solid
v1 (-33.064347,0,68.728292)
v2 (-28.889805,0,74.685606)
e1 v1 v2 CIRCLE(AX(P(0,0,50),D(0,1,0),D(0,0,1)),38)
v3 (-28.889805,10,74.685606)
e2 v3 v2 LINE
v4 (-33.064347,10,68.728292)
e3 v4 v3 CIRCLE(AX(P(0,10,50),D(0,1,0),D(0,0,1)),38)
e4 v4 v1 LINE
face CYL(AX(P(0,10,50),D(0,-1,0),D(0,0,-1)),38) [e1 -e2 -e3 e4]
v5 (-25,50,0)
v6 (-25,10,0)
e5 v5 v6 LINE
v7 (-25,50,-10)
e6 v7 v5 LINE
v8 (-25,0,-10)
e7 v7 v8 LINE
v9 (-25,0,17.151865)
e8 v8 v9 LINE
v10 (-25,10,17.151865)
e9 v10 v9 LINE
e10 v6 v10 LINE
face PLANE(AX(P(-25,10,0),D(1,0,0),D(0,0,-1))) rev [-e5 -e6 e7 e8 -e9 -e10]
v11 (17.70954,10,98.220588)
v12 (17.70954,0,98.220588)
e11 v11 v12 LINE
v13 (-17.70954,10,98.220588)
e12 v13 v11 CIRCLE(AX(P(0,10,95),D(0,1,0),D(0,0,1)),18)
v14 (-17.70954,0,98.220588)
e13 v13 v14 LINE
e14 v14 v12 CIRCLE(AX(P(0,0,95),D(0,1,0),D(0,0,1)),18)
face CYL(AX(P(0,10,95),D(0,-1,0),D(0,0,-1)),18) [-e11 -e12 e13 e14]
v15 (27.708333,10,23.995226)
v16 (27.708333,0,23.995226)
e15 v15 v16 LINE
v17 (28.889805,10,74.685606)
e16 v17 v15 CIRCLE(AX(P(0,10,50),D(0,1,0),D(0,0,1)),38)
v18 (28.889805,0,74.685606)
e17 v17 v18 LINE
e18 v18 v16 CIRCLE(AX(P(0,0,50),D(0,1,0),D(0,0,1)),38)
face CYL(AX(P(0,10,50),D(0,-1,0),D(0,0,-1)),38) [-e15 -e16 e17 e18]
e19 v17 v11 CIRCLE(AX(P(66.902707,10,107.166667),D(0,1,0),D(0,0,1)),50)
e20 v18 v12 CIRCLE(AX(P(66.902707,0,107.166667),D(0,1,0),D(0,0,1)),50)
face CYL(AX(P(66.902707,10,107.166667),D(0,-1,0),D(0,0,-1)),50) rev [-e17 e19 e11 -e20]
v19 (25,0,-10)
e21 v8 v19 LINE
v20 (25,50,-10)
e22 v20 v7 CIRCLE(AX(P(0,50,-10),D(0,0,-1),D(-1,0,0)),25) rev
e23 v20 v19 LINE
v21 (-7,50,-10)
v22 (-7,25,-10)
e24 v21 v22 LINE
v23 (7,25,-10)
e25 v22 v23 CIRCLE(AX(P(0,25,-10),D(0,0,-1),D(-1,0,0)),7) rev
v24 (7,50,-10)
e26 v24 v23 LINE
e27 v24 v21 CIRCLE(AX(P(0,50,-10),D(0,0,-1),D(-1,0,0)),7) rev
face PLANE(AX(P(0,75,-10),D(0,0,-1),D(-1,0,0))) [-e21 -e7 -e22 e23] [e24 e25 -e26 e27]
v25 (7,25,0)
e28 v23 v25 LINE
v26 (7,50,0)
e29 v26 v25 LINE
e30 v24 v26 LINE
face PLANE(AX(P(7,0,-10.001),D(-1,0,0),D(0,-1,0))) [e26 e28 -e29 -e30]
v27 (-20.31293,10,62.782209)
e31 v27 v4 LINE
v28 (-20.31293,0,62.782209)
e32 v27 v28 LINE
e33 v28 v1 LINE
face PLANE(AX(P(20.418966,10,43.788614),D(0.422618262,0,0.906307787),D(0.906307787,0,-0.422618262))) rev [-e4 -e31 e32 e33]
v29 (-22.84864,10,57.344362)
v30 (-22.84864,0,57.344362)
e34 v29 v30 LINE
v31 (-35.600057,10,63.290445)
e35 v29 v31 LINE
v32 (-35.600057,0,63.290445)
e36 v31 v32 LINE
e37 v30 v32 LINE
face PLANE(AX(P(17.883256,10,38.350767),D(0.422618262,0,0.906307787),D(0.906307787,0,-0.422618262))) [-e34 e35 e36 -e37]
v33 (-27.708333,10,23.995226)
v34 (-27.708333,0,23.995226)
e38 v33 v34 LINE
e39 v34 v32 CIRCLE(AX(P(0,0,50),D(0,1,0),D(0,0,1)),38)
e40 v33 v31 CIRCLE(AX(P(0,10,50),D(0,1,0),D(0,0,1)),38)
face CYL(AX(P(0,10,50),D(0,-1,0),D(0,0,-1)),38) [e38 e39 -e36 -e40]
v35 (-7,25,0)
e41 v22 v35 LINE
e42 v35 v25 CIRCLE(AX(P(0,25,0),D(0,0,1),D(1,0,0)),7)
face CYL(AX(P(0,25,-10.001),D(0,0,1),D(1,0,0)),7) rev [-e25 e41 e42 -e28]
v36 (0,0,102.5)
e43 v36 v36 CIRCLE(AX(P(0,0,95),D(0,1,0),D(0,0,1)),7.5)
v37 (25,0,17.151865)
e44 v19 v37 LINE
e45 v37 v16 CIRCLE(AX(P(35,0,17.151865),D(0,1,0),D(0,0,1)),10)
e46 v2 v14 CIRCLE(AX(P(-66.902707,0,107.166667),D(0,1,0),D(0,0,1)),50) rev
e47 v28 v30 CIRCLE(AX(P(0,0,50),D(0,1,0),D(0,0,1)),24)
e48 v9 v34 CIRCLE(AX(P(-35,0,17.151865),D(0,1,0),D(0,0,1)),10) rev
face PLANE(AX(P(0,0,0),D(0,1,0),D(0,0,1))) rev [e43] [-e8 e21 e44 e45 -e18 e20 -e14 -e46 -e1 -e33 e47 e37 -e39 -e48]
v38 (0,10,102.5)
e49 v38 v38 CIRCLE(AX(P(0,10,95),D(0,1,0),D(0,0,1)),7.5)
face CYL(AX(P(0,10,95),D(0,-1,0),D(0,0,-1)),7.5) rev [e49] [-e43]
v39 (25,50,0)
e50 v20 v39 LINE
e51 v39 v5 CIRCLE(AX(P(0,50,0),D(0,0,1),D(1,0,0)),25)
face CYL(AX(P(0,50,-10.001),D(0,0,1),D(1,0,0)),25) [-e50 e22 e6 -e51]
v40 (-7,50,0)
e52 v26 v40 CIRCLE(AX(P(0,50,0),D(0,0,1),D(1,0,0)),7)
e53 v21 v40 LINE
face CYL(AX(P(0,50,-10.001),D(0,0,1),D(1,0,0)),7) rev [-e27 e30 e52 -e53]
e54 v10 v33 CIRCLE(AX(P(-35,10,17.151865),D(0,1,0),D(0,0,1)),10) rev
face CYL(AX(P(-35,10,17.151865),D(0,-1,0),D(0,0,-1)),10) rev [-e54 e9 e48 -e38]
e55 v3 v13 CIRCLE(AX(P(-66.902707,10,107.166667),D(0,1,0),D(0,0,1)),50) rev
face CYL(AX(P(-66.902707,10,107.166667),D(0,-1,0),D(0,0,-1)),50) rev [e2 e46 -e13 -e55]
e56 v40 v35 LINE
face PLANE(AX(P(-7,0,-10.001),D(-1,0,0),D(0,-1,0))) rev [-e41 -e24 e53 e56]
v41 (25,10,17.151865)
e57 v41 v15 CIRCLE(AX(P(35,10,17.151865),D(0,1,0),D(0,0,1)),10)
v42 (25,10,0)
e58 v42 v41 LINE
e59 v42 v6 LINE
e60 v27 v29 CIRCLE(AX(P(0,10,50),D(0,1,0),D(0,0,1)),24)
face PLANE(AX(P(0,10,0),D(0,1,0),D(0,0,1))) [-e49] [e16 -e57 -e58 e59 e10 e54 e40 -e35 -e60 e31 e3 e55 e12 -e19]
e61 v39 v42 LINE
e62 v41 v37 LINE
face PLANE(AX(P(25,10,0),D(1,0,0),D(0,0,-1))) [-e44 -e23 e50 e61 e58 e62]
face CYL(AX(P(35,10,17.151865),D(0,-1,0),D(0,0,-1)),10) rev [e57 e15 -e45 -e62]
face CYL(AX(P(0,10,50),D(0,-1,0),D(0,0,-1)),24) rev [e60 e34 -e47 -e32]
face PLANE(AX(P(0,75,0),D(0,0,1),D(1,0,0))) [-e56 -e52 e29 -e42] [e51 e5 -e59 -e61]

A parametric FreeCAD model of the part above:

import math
import FreeCAD as App
import Part
import Sketcher
from FreeCAD import Vector
Q = App.Units.Quantity


def add_polygon(sketch, points):
    """Adds a closed chain of lines whose ends are joined by coincident constraints."""
    first, n = sketch.GeometryCount, len(points)
    for a, b in zip(points, points[1:] + points[:1]):
        sketch.addGeometry(Part.LineSegment(App.Vector(*a, 0), App.Vector(*b, 0)), False)
    for i in range(n):
        sketch.addConstraint(Sketcher.Constraint("Coincident", first + i, 2, first + (i + 1) % n, 1))

doc = App.newDocument("Part")
body = doc.addObject("PartDesign::Body", "Body")

# Sketch on XZ plane
sketch1 = body.newObject("Sketcher::SketchObject", "Sketch")
sketch1.AttachmentSupport = (doc.getObject("XZ_Plane"), [""])
sketch1.MapMode = "FlatFace"
sketch1.addGeometry(Part.LineSegment(Vector(25, 0, 0), Vector(-25, 0, 0)), False)
sketch1.addGeometry(Part.LineSegment(Vector(-25, 0, 0), Vector(-25, 17, 0)), False)
sketch1.addGeometry(Part.ArcOfCircle(Part.Circle(Vector(-35, 17, 0), Vector(0, 0, 1), 10), math.radians(0), math.radians(43)), False)
sketch1.addGeometry(Part.ArcOfCircle(Part.Circle(Vector(0, 50, 0), Vector(0, 0, 1), 38), math.radians(160), math.radians(223)), False)
sketch1.addGeometry(Part.LineSegment(Vector(-36, 63, 0), Vector(-23, 57, 0)), False)
sketch1.addGeometry(Part.ArcOfCircle(Part.Circle(Vector(0, 50, 0), Vector(0, 0, 1), 24), math.radians(162), math.radians(508)), False)
sketch1.addGeometry(Part.LineSegment(Vector(-20, 63, 0), Vector(-33, 69, 0)), False)
sketch1.addGeometry(Part.ArcOfCircle(Part.Circle(Vector(0, 50, 0), Vector(0, 0, 1), 38), math.radians(139.49), math.radians(150.47)), False)
sketch1.addGeometry(Part.ArcOfCircle(Part.Circle(Vector(-67, 107, 0), Vector(0, 0, 1), 50), math.radians(-41), math.radians(-10)), False)
sketch1.addGeometry(Part.ArcOfCircle(Part.Circle(Vector(0, 95, 0), Vector(0, 0, 1), 18), math.radians(10), math.radians(170)), False)
sketch1.addGeometry(Part.ArcOfCircle(Part.Circle(Vector(67, 107, 0), Vector(0, 0, 1), 50), math.radians(-170), math.radians(-139)), False)
sketch1.addGeometry(Part.ArcOfCircle(Part.Circle(Vector(0, 50, 0), Vector(0, 0, 1), 38), math.radians(-43), math.radians(41)), False)
sketch1.addGeometry(Part.ArcOfCircle(Part.Circle(Vector(35, 17, 0), Vector(0, 0, 1), 10), math.radians(137), math.radians(180)), False)
sketch1.addGeometry(Part.LineSegment(Vector(25, 17, 0), Vector(25, 0, 0)), False)
sketch1.addGeometry(Part.Circle(Vector(0, 95, 0), Vector(0, 0, 1), 8), False)
sketch1.addConstraint(Sketcher.Constraint("Coincident", 0, 2, 1, 1))
sketch1.addConstraint(Sketcher.Constraint("Tangent", 1, 2, 2, 1))
sketch1.addConstraint(Sketcher.Constraint("Tangent", 2, 2, 3, 2))
sketch1.addConstraint(Sketcher.Constraint("Coincident", 3, 1, 4, 1))
sketch1.addConstraint(Sketcher.Constraint("Coincident", 4, 2, 5, 1))
sketch1.addConstraint(Sketcher.Constraint("Coincident", 5, 2, 6, 1))
sketch1.addConstraint(Sketcher.Constraint("Coincident", 6, 2, 7, 2))
sketch1.addConstraint(Sketcher.Constraint("Tangent", 7, 1, 8, 1))
sketch1.addConstraint(Sketcher.Constraint("Tangent", 8, 2, 9, 2))
sketch1.addConstraint(Sketcher.Constraint("Tangent", 9, 1, 10, 1))
sketch1.addConstraint(Sketcher.Constraint("Tangent", 10, 2, 11, 2))
sketch1.addConstraint(Sketcher.Constraint("Tangent", 11, 1, 12, 1))
sketch1.addConstraint(Sketcher.Constraint("Tangent", 12, 2, 13, 1))
sketch1.addConstraint(Sketcher.Constraint("Coincident", 13, 2, 0, 1))
sketch1.addConstraint(Sketcher.Constraint("Horizontal", 0))
sketch1.addConstraint(Sketcher.Constraint("Vertical", 1))
sketch1.addConstraint(Sketcher.Constraint("Vertical", 13))
sketch1.addConstraint(Sketcher.Constraint("Coincident", 5, 3, 3, 3))
sketch1.addConstraint(Sketcher.Constraint("Coincident", 7, 3, 3, 3))
sketch1.addConstraint(Sketcher.Constraint("Coincident", 11, 3, 3, 3))
sketch1.addConstraint(Sketcher.Constraint("Coincident", 14, 3, 9, 3))
sketch1.addConstraint(Sketcher.Constraint("Equal", 3, 7))
sketch1.addConstraint(Sketcher.Constraint("Equal", 8, 10))
sketch1.addConstraint(Sketcher.Constraint("Equal", 7, 11))
sketch1.addConstraint(Sketcher.Constraint("Equal", 2, 12))
sketch1.addConstraint(Sketcher.Constraint("Symmetric", 0, 2, 13, 2, -1, 1))
sketch1.addConstraint(Sketcher.Constraint("Symmetric", 8, 3, 10, 3, -2))
sketch1.addConstraint(Sketcher.Constraint("Parallel", 4, 6))
sketch1.addConstraint(Sketcher.Constraint("Equal", 4, 6))
sketch1.addConstraint(Sketcher.Constraint("Diameter", 14, 15.0))
sketch1.addConstraint(Sketcher.Constraint("Radius", 2, 10.0))
sketch1.addConstraint(Sketcher.Constraint("Radius", 3, 38.0))
sketch1.addConstraint(Sketcher.Constraint("Radius", 5, 24.0))
sketch1.addConstraint(Sketcher.Constraint("Radius", 8, 50.0))
sketch1.addConstraint(Sketcher.Constraint("Radius", 9, 18.0))
sketch1.addConstraint(Sketcher.Constraint("DistanceX", 0, 2, 0, 1, 50.0))
sketch1.addConstraint(Sketcher.Constraint("Angle", 4, Q("-25 deg")))
sketch1.addConstraint(Sketcher.Constraint("DistanceY", -1, 1, 3, 3, 50.0))
sketch1.addConstraint(Sketcher.Constraint("DistanceY", -1, 1, 9, 3, 95.0))
sketch1.addConstraint(Sketcher.Constraint("DistanceX", 4, 2, -1, 1, 22.84864))
pad1 = body.newObject("PartDesign::Pad", "Pad")
pad1.Profile = sketch1
pad1.Length = 10
pad1.Reversed = True

# Sketch on XZ plane
sketch2 = body.newObject("Sketcher::SketchObject", "Sketch001")
sketch2.AttachmentSupport = (doc.getObject("XZ_Plane"), [""])
sketch2.MapMode = "FlatFace"
add_polygon(sketch2, [(-25, -10), (-25, 0), (25, 0), (25, -10)])  # lines 0-3
sketch2.addConstraint(Sketcher.Constraint("Vertical", 0))
sketch2.addConstraint(Sketcher.Constraint("Horizontal", 1))
sketch2.addConstraint(Sketcher.Constraint("Vertical", 2))
sketch2.addConstraint(Sketcher.Constraint("Horizontal", 3))
sketch2.addConstraint(Sketcher.Constraint("Symmetric", 0, 2, 1, 2, -1, 1))
sketch2.addConstraint(Sketcher.Constraint("DistanceX", 1, 1, 1, 2, 50.0))
sketch2.addConstraint(Sketcher.Constraint("DistanceY", 0, 1, 0, 2, 10.0))
pad2 = body.newObject("PartDesign::Pad", "Pad001")
pad2.Profile = sketch2
pad2.Length = 75
pad2.Reversed = True

# Sketch on XY plane
sketch3 = body.newObject("Sketcher::SketchObject", "Sketch002")
sketch3.AttachmentSupport = (doc.getObject("XY_Plane"), [""])
sketch3.MapMode = "FlatFace"
sketch3.addGeometry(Part.LineSegment(Vector(-7, 50, 0), Vector(-7, 25, 0)), False)
sketch3.addGeometry(Part.ArcOfCircle(Part.Circle(Vector(0, 25, 0), Vector(0, 0, 1), 7), math.radians(180), math.radians(360)), False)
sketch3.addGeometry(Part.LineSegment(Vector(7, 25, 0), Vector(7, 50, 0)), False)
sketch3.addGeometry(Part.ArcOfCircle(Part.Circle(Vector(0, 50, 0), Vector(0, 0, 1), 7), math.radians(0), math.radians(180)), False)
sketch3.addConstraint(Sketcher.Constraint("Tangent", 0, 2, 1, 1))
sketch3.addConstraint(Sketcher.Constraint("Tangent", 1, 2, 2, 1))
sketch3.addConstraint(Sketcher.Constraint("Tangent", 2, 2, 3, 1))
sketch3.addConstraint(Sketcher.Constraint("Tangent", 3, 2, 0, 1))
sketch3.addConstraint(Sketcher.Constraint("Vertical", 0))
sketch3.addConstraint(Sketcher.Constraint("Vertical", 2))
sketch3.addConstraint(Sketcher.Constraint("PointOnObject", 1, 3, -2))
sketch3.addConstraint(Sketcher.Constraint("Radius", 1, 7.0))
sketch3.addConstraint(Sketcher.Constraint("DistanceY", 0, 2, 0, 1, 25.0))
sketch3.addConstraint(Sketcher.Constraint("DistanceY", -1, 1, 1, 3, 25.0))
pocket1 = body.newObject("PartDesign::Pocket", "Pocket")
pocket1.Profile = sketch3
pocket1.Type = "UpToFirst"

# Sketch on XY plane
sketch4 = body.newObject("Sketcher::SketchObject", "Sketch003")
sketch4.AttachmentSupport = (doc.getObject("XY_Plane"), [""])
sketch4.MapMode = "FlatFace"
sketch4.addGeometry(Part.ArcOfCircle(Part.Circle(Vector(0, 50, 0), Vector(0, 0, 1), 25), math.radians(0), math.radians(90)), False)
sketch4.addGeometry(Part.LineSegment(Vector(25, 50, 0), Vector(25, 75, 0)), False)
sketch4.addGeometry(Part.LineSegment(Vector(25, 75, 0), Vector(0, 75, 0)), False)
sketch4.addConstraint(Sketcher.Constraint("Tangent", 0, 1, 1, 1))
sketch4.addConstraint(Sketcher.Constraint("Coincident", 1, 2, 2, 1))
sketch4.addConstraint(Sketcher.Constraint("Tangent", 2, 2, 0, 2))
sketch4.addConstraint(Sketcher.Constraint("Vertical", 1))
sketch4.addConstraint(Sketcher.Constraint("Horizontal", 2))
sketch4.addConstraint(Sketcher.Constraint("PointOnObject", 0, 3, -2))
sketch4.addConstraint(Sketcher.Constraint("Radius", 0, 25.0))
sketch4.addConstraint(Sketcher.Constraint("DistanceY", -1, 1, 0, 3, 50.0))
pocket2 = body.newObject("PartDesign::Pocket", "Pocket001")
pocket2.Profile = sketch4
pocket2.Type = "UpToFirst"

# Sketch on XY plane
sketch5 = body.newObject("Sketcher::SketchObject", "Sketch004")
sketch5.AttachmentSupport = (doc.getObject("XY_Plane"), [""])
sketch5.MapMode = "FlatFace"
sketch5.addGeometry(Part.ArcOfCircle(Part.Circle(Vector(0, 50, 0), Vector(0, 0, 1), 25), math.radians(90), math.radians(180)), False)
sketch5.addGeometry(Part.LineSegment(Vector(0, 75, 0), Vector(-25, 75, 0)), False)
sketch5.addGeometry(Part.LineSegment(Vector(-25, 75, 0), Vector(-25, 50, 0)), False)
sketch5.addConstraint(Sketcher.Constraint("Tangent", 0, 1, 1, 1))
sketch5.addConstraint(Sketcher.Constraint("Coincident", 1, 2, 2, 1))
sketch5.addConstraint(Sketcher.Constraint("Tangent", 2, 2, 0, 2))
sketch5.addConstraint(Sketcher.Constraint("Horizontal", 1))
sketch5.addConstraint(Sketcher.Constraint("Vertical", 2))
sketch5.addConstraint(Sketcher.Constraint("PointOnObject", 0, 3, -2))
sketch5.addConstraint(Sketcher.Constraint("Radius", 0, 25.0))
sketch5.addConstraint(Sketcher.Constraint("DistanceY", -1, 1, 0, 3, 50.0))
pocket3 = body.newObject("PartDesign::Pocket", "Pocket002")
pocket3.Profile = sketch5
pocket3.Type = "UpToFirst"

doc.recompute()
